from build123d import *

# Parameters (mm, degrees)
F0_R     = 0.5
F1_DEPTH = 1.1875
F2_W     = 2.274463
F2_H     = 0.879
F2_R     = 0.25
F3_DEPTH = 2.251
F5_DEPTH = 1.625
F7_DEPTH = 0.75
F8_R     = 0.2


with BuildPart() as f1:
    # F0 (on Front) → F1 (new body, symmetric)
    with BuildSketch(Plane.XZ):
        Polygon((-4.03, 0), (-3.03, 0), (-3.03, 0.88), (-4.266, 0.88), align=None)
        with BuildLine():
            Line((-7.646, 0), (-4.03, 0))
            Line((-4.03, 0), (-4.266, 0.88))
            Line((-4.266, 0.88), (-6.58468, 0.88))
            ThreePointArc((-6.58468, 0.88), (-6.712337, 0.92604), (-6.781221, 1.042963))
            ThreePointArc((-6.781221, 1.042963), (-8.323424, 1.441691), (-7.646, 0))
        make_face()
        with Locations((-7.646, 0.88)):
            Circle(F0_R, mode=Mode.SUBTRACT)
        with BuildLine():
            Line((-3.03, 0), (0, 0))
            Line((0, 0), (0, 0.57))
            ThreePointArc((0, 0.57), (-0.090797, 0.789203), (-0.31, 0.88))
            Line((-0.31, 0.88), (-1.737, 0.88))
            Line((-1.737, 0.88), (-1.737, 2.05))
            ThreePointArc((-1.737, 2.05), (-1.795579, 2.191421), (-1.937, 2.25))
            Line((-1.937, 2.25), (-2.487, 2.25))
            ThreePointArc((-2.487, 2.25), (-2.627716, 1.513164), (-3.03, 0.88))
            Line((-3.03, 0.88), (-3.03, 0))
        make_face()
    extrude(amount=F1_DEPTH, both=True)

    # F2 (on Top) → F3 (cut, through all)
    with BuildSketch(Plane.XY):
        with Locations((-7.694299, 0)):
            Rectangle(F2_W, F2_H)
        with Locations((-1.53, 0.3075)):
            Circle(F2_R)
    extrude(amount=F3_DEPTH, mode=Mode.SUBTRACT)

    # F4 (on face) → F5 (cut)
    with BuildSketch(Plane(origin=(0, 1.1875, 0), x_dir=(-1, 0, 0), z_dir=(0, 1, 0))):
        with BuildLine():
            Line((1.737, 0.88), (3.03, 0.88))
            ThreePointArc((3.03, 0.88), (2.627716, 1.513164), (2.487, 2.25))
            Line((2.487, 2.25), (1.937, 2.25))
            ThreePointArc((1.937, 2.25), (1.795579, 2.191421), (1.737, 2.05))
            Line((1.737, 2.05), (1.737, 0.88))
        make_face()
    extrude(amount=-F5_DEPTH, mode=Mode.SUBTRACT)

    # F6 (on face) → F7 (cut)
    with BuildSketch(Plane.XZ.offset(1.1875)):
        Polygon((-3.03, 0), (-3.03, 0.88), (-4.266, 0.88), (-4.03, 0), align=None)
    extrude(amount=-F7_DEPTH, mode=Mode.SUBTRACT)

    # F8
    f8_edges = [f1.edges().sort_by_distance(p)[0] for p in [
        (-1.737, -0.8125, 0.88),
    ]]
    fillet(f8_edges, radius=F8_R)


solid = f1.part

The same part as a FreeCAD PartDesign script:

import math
import FreeCAD as App
import Part
import Sketcher

V = App.Vector


def edges_at(feature, points):
    """Names of the edges that pass closest to the given points."""
    edges = feature.Shape.Edges
    near = lambda p: min(range(len(edges)), key=lambda i: edges[i].distToShape(Part.Vertex(*p))[0])
    return sorted({f"Edge{near(p) + 1}" for p in points})


def add_polygon(sketch, points):
    """Adds a closed chain of lines whose ends are joined by coincident constraints."""
    first, n = sketch.GeometryCount, len(points)
    for a, b in zip(points, points[1:] + points[:1]):
        sketch.addGeometry(Part.LineSegment(App.Vector(*a, 0), App.Vector(*b, 0)), False)
    for i in range(n):
        sketch.addConstraint(Sketcher.Constraint("Coincident", first + i, 2, first + (i + 1) % n, 1))

doc = App.newDocument("Part")
body = doc.addObject("PartDesign::Body", "Body")

# Sketch on XZ plane
sketch1 = doc.addObject("Sketcher::SketchObject", "Sketch")
body.addObject(sketch1)
sketch1.AttachmentSupport = (doc.XZ_Plane, [""])
sketch1.MapMode = "FlatFace"
sketch1.addGeometry(Part.LineSegment(V(-7.646, 0, 0), V(0, 0, 0)), False)
sketch1.addGeometry(Part.LineSegment(V(0, 0, 0), V(0, 0.57, 0)), False)
sketch1.addGeometry(Part.ArcOfCircle(Part.Circle(V(-0.31, 0.57, 0), V(0, 0, 1), 0.31), math.radians(0.000065), math.radians(89.999935)), False)
sketch1.addGeometry(Part.LineSegment(V(-0.31, 0.88, 0), V(-1.737, 0.88, 0)), False)
sketch1.addGeometry(Part.LineSegment(V(-1.737, 0.88, 0), V(-1.737, 2.05, 0)), False)
sketch1.addGeometry(Part.ArcOfCircle(Part.Circle(V(-1.937001, 2.049999, 0), V(0, 0, 1), 0.200001), math.radians(0.000348), math.radians(89.999652)), False)
sketch1.addGeometry(Part.LineSegment(V(-1.937, 2.25, 0), V(-2.487, 2.25, 0)), False)
sketch1.addGeometry(Part.ArcOfCircle(Part.Circle(V(-4.487002, 2.250093, 0), V(0, 0, 1), 2.000002), math.radians(-43.239182), math.radians(-0.002651)), False)
sketch1.addGeometry(Part.LineSegment(V(-3.03, 0.88, 0), V(-6.58468, 0.88, 0)), False)
sketch1.addGeometry(Part.ArcOfCircle(Part.Circle(V(-6.58468, 1.080001, 0), V(0, 0, 1), 0.200001), math.radians(-169.32793), math.radians(-90.000076)), False)
sketch1.addGeometry(Part.ArcOfCircle(Part.Circle(V(-7.646, 0.88, 0), V(0, 0, 1), 0.88), math.radians(10.671935), math.radians(270.000009)), False)
sketch1.addGeometry(Part.Circle(V(-7.646, 0.88, 0), V(0, 0, 1), 0.5), False)
sketch1.addConstraint(Sketcher.Constraint("Coincident", 0, 2, 1, 1))
sketch1.addConstraint(Sketcher.Constraint("Tangent", 1, 2, 2, 1))
sketch1.addConstraint(Sketcher.Constraint("Tangent", 2, 2, 3, 1))
sketch1.addConstraint(Sketcher.Constraint("Coincident", 3, 2, 4, 1))
sketch1.addConstraint(Sketcher.Constraint("Coincident", 4, 2, 5, 1))
sketch1.addConstraint(Sketcher.Constraint("Coincident", 5, 2, 6, 1))
sketch1.addConstraint(Sketcher.Constraint("Coincident", 6, 2, 7, 2))
sketch1.addConstraint(Sketcher.Constraint("Coincident", 7, 1, 8, 1))
sketch1.addConstraint(Sketcher.Constraint("Tangent", 8, 2, 9, 2))
sketch1.addConstraint(Sketcher.Constraint("Coincident", 9, 1, 10, 1))
sketch1.addConstraint(Sketcher.Constraint("Tangent", 10, 2, 0, 1))
sketch1.addConstraint(Sketcher.Constraint("Horizontal", 0))
sketch1.addConstraint(Sketcher.Constraint("Vertical", 1))
sketch1.addConstraint(Sketcher.Constraint("Horizontal", 3))
sketch1.addConstraint(Sketcher.Constraint("Vertical", 4))
sketch1.addConstraint(Sketcher.Constraint("Horizontal", 6))
sketch1.addConstraint(Sketcher.Constraint("Horizontal", 8))
sketch1.addConstraint(Sketcher.Constraint("Coincident", 0, 2, -1, 1))
sketch1.addConstraint(Sketcher.Constraint("Coincident", 11, 3, 10, 3))
sketch1.addConstraint(Sketcher.Constraint("Equal", 5, 9))
sketch1.addConstraint(Sketcher.Constraint("Horizontal", 11, 3, 2, 2))
sketch1.addConstraint(Sketcher.Constraint("Horizontal", 5, 3, 4, 2))
sketch1.addConstraint(Sketcher.Constraint("Horizontal", 3, 2, 7, 1))
sketch1.addConstraint(Sketcher.Constraint("Diameter", 11, 1.0))
sketch1.addConstraint(Sketcher.Constraint("Radius", 5, 0.200001))
sketch1.addConstraint(Sketcher.Constraint("Radius", 2, 0.31))
sketch1.addConstraint(Sketcher.Constraint("Radius", 10, 0.88))
sketch1.addConstraint(Sketcher.Constraint("DistanceX", 6, 2, 6, 1, 0.55))
sketch1.addConstraint(Sketcher.Constraint("DistanceY", 4, 1, 4, 2, 1.17))
sketch1.addConstraint(Sketcher.Constraint("DistanceX", 5, 2, 4, 2, 0.2))
sketch1.addConstraint(Sketcher.Constraint("DistanceX", 0, 1, 0, 2, 7.646))
sketch1.addConstraint(Sketcher.Constraint("DistanceX", 3, 2, 3, 1, 1.427))
sketch1.addConstraint(Sketcher.Constraint("DistanceX", 7, 1, -1, 1, 3.03))
sketch1.addConstraint(Sketcher.Constraint("DistanceX", 7, 3, 5, 3, 2.550001))
sketch1.addConstraint(Sketcher.Constraint("DistanceX", 9, 1, -1, 1, 6.781221))
pad1 = doc.addObject("PartDesign::Pad", "Pad")
body.addObject(pad1)
pad1.Profile = sketch1
pad1.Length = 2.375
pad1.Midplane = True

# Sketch on XY plane
sketch2 = doc.addObject("Sketcher::SketchObject", "Sketch001")
body.addObject(sketch2)
sketch2.AttachmentSupport = (doc.XY_Plane, [""])
sketch2.MapMode = "FlatFace"
add_polygon(sketch2, [(-8.83153, 0.4395), (-8.83153, -0.4395), (-6.557067, -0.4395), (-6.557067, 0.4395)])  # lines 0-3
sketch2.addGeometry(Part.Circle(V(-1.53, 0.3075, 0), V(0, 0, 1), 0.25), False)  # 4
sketch2.addConstraint(Sketcher.Constraint("Vertical", 0))
sketch2.addConstraint(Sketcher.Constraint("Horizontal", 1))
sketch2.addConstraint(Sketcher.Constraint("Vertical", 2))
sketch2.addConstraint(Sketcher.Constraint("Horizontal", 3))
sketch2.addConstraint(Sketcher.Constraint("Diameter", 4, 0.5))
sketch2.addConstraint(Sketcher.Constraint("DistanceY", 0, 2, 0, 1, 0.879))
sketch2.addConstraint(Sketcher.Constraint("DistanceX", 4, 3, -1, 1, 1.53))
sketch2.addConstraint(Sketcher.Constraint("DistanceY", 0, 2, 4, 3, 0.747))
sketch2.addConstraint(Sketcher.Constraint("DistanceY", -1, 1, 4, 3, 0.3075))
sketch2.addConstraint(Sketcher.Constraint("DistanceX", 1, 1, 1, 2, 2.274463))
sketch2.addConstraint(Sketcher.Constraint("DistanceX", 0, 2, -1, 1, 8.83153))
pocket1 = doc.addObject("PartDesign::Pocket", "Pocket")
body.addObject(pocket1)
pocket1.Profile = sketch2
pocket1.Type = "ThroughAll"
pocket1.Reversed = True

# Sketch on XZ plane
sketch3 = doc.addObject("Sketcher::SketchObject", "Sketch002")
body.addObject(sketch3)
sketch3.AttachmentSupport = (doc.XZ_Plane, [""])
sketch3.MapMode = "FlatFace"
sketch3.AttachmentOffset = App.Placement(V(0, 0, -1.1875), App.Rotation())
sketch3.addGeometry(Part.LineSegment(V(-1.737, 0.88, 0), V(-3.03, 0.88, 0)), False)
sketch3.addGeometry(Part.ArcOfCircle(Part.Circle(V(-4.487002, 2.250093, 0), V(0, 0, 1), 2.000002), math.radians(-43.239182), math.radians(-0.002651)), False)
sketch3.addGeometry(Part.LineSegment(V(-2.487, 2.25, 0), V(-1.937, 2.25, 0)), False)
sketch3.addGeometry(Part.ArcOfCircle(Part.Circle(V(-1.937001, 2.049999, 0), V(0, 0, 1), 0.200001), math.radians(0.000348), math.radians(89.999652)), False)
sketch3.addGeometry(Part.LineSegment(V(-1.737, 2.05, 0), V(-1.737, 0.88, 0)), False)
sketch3.addConstraint(Sketcher.Constraint("Coincident", 0, 2, 1, 1))
sketch3.addConstraint(Sketcher.Constraint("Coincident", 1, 2, 2, 1))
sketch3.addConstraint(Sketcher.Constraint("Coincident", 2, 2, 3, 2))
sketch3.addConstraint(Sketcher.Constraint("Coincident", 3, 1, 4, 1))
sketch3.addConstraint(Sketcher.Constraint("Coincident", 4, 2, 0, 1))
sketch3.addConstraint(Sketcher.Constraint("Horizontal", 0))
sketch3.addConstraint(Sketcher.Constraint("Horizontal", 2))
sketch3.addConstraint(Sketcher.Constraint("Vertical", 4))
sketch3.addConstraint(Sketcher.Constraint("Vertical", 3, 3, 2, 2))
sketch3.addConstraint(Sketcher.Constraint("Radius", 3, 0.200001))
sketch3.addConstraint(Sketcher.Constraint("DistanceX", 2, 1, 2, 2, 0.55))
sketch3.addConstraint(Sketcher.Constraint("DistanceY", 4, 2, 4, 1, 1.17))
sketch3.addConstraint(Sketcher.Constraint("DistanceY", 3, 1, 2, 2, 0.2))
sketch3.addConstraint(Sketcher.Constraint("DistanceX", 0, 2, 0, 1, 1.293))
sketch3.addConstraint(Sketcher.Constraint("DistanceY", -1, 1, 3, 3, 2.049999))
sketch3.addConstraint(Sketcher.Constraint("DistanceX", 0, 2, -1, 1, 3.03))
sketch3.addConstraint(Sketcher.Constraint("DistanceX", 1, 3, 3, 3, 2.550001))
pocket2 = doc.addObject("PartDesign::Pocket", "Pocket001")
body.addObject(pocket2)
pocket2.Profile = sketch3
pocket2.Length = 1.625
pocket2.Reversed = True

# Sketch on XZ plane
sketch4 = doc.addObject("Sketcher::SketchObject", "Sketch003")
body.addObject(sketch4)
sketch4.AttachmentSupport = (doc.XZ_Plane, [""])
sketch4.MapMode = "FlatFace"
sketch4.AttachmentOffset = App.Placement(V(0, 0, 1.1875), App.Rotation())
add_polygon(sketch4, [(-3.03, 0), (-3.03, 0.88), (-4.266, 0.88), (-4.03, 0)])  # lines 0-3
sketch4.addConstraint(Sketcher.Constraint("Vertical", 0))
sketch4.addConstraint(Sketcher.Constraint("Horizontal", 1))
sketch4.addConstraint(Sketcher.Constraint("Horizontal", 3))
sketch4.addConstraint(Sketcher.Constraint("PointOnObject", 2, 2, -1))
sketch4.addConstraint(Sketcher.Constraint("DistanceX", 3, 1, 3, 2, 1.0))
sketch4.addConstraint(Sketcher.Constraint("DistanceY", 0, 1, 0, 2, 0.88))
sketch4.addConstraint(Sketcher.Constraint("DistanceX", 1, 2, 1, 1, 1.236))
sketch4.addConstraint(Sketcher.Constraint("DistanceX", 0, 2, -1, 1, 3.03))
pocket3 = doc.addObject("PartDesign::Pocket", "Pocket002")
body.addObject(pocket3)
pocket3.Profile = sketch4
pocket3.Length = 0.75
doc.recompute()

fillet = doc.addObject("PartDesign::Fillet", "Fillet")
body.addObject(fillet)
fillet.Base = (pocket3, edges_at(pocket3, [(-1.737, -0.812, 0.88)]))
fillet.Radius = 0.2

doc.recompute()
